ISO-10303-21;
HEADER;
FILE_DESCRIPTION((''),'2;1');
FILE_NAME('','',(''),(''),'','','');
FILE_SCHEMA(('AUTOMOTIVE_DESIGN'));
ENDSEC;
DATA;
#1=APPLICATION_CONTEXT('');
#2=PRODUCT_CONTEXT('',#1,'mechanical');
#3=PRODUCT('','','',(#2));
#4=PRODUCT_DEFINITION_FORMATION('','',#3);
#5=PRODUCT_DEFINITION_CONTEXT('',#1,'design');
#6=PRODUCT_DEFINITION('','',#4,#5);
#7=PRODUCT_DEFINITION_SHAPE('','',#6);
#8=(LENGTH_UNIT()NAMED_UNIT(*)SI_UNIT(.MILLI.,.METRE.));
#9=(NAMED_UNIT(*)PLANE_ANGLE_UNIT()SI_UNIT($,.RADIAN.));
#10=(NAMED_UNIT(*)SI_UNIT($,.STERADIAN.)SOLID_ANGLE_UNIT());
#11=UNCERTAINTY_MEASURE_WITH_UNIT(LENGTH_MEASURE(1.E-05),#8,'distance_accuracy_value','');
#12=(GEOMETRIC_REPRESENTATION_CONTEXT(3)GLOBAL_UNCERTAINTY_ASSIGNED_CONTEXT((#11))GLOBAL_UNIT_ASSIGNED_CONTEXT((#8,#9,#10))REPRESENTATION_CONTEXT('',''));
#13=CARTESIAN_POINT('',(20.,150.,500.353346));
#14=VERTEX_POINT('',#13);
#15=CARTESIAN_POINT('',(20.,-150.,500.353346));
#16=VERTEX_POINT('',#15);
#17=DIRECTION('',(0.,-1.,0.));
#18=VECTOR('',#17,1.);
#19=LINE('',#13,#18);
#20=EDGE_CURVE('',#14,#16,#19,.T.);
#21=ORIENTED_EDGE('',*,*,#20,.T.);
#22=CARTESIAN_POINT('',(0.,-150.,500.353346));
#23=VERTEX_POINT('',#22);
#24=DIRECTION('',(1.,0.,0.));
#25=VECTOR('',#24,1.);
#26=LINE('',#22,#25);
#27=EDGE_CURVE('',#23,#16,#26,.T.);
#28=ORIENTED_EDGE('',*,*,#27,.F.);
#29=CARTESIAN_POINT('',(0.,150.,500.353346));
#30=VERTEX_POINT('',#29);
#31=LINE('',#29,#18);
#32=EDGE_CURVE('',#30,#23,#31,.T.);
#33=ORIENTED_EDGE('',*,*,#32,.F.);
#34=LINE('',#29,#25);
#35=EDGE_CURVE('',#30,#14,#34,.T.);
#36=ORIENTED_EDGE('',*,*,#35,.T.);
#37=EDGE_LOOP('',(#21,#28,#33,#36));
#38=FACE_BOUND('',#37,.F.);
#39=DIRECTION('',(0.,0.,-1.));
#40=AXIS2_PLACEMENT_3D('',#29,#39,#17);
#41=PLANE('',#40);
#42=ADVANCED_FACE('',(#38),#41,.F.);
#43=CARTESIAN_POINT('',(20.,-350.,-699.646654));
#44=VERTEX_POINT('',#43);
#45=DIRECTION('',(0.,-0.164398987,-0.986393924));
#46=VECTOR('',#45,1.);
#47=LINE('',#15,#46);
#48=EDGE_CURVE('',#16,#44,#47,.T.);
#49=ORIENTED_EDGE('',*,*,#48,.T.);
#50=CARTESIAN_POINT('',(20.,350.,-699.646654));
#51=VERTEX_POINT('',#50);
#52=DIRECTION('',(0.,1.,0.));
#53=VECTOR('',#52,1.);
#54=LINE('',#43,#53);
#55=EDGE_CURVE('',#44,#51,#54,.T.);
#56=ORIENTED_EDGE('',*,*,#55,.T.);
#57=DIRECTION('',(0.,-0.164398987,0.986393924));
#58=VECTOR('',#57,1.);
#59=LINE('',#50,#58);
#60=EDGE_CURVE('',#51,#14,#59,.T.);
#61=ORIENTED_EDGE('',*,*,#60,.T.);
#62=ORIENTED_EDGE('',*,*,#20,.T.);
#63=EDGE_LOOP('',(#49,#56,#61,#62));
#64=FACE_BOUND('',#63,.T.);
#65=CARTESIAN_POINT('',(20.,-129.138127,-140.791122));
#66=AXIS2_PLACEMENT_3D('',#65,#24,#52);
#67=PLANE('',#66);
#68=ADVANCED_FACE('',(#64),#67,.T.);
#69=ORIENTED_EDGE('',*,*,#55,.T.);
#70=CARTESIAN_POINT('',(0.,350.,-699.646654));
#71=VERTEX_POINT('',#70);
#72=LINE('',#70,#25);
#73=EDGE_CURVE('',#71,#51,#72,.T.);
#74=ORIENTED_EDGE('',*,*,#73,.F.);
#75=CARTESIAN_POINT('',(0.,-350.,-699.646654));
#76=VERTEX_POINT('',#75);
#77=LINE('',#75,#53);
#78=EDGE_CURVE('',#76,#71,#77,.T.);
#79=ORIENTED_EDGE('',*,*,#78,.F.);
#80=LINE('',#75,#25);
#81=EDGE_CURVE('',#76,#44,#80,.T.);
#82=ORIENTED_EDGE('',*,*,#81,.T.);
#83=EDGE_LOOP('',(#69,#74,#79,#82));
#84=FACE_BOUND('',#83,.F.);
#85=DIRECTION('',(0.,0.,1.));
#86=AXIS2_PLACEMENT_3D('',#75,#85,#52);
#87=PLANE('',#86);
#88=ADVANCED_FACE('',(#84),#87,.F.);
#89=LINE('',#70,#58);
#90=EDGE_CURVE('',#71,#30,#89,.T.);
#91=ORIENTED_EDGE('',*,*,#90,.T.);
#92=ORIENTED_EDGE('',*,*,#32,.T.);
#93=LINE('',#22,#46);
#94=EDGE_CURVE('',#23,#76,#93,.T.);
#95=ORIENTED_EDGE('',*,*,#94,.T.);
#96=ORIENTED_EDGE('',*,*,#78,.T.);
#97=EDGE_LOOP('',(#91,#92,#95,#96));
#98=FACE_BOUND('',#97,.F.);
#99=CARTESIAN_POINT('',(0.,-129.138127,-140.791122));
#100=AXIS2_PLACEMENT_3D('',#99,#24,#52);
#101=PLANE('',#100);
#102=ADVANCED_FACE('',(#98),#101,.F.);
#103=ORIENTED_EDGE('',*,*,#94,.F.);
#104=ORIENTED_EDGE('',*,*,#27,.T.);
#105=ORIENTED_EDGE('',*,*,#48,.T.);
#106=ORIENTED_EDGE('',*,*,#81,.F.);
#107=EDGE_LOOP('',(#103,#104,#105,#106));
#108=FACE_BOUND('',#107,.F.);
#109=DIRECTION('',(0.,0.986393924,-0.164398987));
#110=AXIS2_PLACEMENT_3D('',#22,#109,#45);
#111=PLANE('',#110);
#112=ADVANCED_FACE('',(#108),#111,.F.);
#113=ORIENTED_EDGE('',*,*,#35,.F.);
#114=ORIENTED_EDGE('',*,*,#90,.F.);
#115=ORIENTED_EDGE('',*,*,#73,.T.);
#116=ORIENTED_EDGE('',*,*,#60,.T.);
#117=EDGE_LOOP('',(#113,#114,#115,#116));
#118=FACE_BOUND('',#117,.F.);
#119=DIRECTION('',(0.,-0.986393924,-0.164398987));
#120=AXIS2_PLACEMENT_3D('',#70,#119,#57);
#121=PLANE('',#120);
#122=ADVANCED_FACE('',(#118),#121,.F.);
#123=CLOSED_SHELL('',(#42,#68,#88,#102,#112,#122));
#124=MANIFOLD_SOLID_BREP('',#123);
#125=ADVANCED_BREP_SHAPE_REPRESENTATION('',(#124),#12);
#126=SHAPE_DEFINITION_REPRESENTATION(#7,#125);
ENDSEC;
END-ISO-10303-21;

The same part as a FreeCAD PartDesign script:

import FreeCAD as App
import Part
import Sketcher
from FreeCAD import Vector
Q = App.Units.Quantity


def add_polygon(sketch, points):
    """Adds a closed chain of lines whose ends are joined by coincident constraints."""
    first, n = sketch.GeometryCount, len(points)
    for a, b in zip(points, points[1:] + points[:1]):
        sketch.addGeometry(Part.LineSegment(App.Vector(*a, 0), App.Vector(*b, 0)), False)
    for i in range(n):
        sketch.addConstraint(Sketcher.Constraint("Coincident", first + i, 2, first + (i + 1) % n, 1))

doc = App.newDocument("Part")
params = doc.addObject("Spreadsheet::Sheet", "Params")
for row, (alias, value) in enumerate([
    ("sketch1_width", "700 mm"),
    ("sketch1_width2", "300 mm"),
    ("pad1_length", "20 mm"),
], start=1):
    params.set(f"A{row}", alias)
    params.set(f"B{row}", "=" + value)
    params.setAlias(f"B{row}", alias)

body = doc.addObject("PartDesign::Body", "Body")

# Sketch on YZ plane
sketch1 = body.newObject("Sketcher::SketchObject", "Sketch")
sketch1.AttachmentSupport = (doc.getObject("YZ_Plane"), [""])
sketch1.MapMode = "FlatFace"
add_polygon(sketch1, [(-150, 500.353346), (-350, -699.646654), (350, -699.646654), (150, 500.353346)])  # lines 0-3
sketch1.addConstraint([
    Sketcher.Constraint("Horizontal", 1),
    Sketcher.Constraint("Horizontal", 3),
    Sketcher.Constraint("Equal", 0, 2),
    Sketcher.Constraint("DistanceX", 1, 1, 1, 2, Q("700 mm")),
    Sketcher.Constraint("DistanceX", 3, 2, 3, 1, Q("300 mm")),
    Sketcher.Constraint("DistanceX", 0, 2, -1, 1, Q("350 mm")),
    Sketcher.Constraint("DistanceY", 1, 2, 2, 2, Q("1200 mm")),
    Sketcher.Constraint("DistanceY", 0, 2, -1, 1, Q("699.646654 mm")),
])
sketch1.setExpression("Constraints[7]", "Params.sketch1_width")
sketch1.setExpression("Constraints[8]", "Params.sketch1_width2")
pad1 = body.newObject("PartDesign::Pad", "Pad")
pad1.Profile = sketch1
pad1.setExpression("Length", "Params.pad1_length")

doc.recompute()
